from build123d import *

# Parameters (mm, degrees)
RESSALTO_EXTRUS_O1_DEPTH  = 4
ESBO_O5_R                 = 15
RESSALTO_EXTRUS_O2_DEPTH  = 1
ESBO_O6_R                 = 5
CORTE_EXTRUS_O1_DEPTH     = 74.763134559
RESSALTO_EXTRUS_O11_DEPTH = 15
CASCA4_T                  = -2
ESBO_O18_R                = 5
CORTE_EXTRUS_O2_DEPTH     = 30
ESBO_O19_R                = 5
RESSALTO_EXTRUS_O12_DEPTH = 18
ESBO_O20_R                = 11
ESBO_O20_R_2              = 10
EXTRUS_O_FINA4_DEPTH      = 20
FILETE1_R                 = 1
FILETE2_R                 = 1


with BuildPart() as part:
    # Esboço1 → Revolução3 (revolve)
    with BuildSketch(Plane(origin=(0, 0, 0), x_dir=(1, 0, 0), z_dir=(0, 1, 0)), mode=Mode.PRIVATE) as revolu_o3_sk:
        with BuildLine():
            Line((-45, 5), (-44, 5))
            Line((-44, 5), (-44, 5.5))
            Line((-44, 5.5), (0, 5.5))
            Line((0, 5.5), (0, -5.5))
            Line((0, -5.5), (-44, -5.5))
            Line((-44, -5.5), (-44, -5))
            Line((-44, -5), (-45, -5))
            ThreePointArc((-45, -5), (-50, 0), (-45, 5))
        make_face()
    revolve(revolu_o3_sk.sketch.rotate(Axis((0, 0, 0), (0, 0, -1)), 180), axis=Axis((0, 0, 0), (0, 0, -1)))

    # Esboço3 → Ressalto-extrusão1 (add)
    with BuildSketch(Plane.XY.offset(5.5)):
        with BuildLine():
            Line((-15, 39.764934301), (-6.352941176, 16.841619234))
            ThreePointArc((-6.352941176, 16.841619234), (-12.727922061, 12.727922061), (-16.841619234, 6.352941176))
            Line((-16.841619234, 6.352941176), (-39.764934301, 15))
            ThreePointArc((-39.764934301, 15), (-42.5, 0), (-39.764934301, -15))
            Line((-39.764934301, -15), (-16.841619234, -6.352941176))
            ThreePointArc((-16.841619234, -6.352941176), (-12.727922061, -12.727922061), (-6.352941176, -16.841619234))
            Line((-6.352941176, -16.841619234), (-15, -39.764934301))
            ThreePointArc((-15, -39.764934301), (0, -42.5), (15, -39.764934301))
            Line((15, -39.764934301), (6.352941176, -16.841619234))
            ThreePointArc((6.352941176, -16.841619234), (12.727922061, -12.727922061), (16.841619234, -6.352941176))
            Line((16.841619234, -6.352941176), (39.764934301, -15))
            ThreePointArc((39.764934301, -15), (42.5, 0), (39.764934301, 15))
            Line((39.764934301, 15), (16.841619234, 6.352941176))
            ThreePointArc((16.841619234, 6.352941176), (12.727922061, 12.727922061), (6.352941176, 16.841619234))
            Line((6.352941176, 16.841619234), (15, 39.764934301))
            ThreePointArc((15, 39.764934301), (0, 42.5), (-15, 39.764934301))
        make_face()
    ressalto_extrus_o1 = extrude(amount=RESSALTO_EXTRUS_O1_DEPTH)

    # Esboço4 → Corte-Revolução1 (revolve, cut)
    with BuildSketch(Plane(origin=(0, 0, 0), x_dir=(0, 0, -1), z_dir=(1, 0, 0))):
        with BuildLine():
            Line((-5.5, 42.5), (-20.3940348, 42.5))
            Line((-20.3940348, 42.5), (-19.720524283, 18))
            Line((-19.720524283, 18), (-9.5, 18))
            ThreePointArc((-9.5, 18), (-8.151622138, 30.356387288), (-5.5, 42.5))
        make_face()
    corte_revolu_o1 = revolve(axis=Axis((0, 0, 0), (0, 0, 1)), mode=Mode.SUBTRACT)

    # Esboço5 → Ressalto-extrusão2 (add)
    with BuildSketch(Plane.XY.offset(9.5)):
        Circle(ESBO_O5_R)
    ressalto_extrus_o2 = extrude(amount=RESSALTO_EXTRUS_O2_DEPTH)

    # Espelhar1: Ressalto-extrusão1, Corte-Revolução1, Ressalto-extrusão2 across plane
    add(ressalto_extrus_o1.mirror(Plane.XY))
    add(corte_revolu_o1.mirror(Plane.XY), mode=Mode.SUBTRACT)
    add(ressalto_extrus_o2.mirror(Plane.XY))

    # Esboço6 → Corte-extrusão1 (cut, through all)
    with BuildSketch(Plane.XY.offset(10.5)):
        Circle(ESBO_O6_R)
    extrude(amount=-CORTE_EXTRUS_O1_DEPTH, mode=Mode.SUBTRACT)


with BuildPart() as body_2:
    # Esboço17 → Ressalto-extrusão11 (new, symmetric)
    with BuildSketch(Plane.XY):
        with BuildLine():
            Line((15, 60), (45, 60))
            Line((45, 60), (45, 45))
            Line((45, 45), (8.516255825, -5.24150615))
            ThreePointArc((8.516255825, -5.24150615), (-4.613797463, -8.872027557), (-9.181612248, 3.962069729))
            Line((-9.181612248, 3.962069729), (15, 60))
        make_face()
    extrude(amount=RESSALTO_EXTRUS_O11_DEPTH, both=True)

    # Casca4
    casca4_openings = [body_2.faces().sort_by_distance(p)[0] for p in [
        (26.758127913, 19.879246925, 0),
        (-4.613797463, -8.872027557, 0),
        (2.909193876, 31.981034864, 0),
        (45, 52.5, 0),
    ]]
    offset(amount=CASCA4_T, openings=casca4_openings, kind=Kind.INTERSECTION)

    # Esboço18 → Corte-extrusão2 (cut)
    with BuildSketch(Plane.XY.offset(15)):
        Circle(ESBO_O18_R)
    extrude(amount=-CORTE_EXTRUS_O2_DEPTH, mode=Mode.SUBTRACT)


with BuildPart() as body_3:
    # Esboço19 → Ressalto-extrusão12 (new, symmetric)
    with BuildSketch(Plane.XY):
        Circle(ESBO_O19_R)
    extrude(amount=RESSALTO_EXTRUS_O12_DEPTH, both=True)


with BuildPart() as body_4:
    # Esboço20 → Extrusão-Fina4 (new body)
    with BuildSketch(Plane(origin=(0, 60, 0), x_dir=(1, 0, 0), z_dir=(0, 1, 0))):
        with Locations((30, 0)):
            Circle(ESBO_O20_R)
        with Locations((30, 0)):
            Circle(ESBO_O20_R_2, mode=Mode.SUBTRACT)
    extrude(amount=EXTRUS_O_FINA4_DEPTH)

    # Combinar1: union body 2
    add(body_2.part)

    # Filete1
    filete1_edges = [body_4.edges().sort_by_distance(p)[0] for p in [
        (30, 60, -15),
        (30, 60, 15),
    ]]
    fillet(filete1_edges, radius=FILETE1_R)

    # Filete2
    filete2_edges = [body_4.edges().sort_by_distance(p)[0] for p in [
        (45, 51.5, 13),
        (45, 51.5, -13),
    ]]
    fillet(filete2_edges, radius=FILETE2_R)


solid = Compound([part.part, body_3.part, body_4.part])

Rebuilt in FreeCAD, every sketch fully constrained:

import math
import FreeCAD as App
import Part
import Sketcher
Q = App.Units.Quantity


def edges_at(feature, points):
    """Names of the edges that pass closest to the given points."""
    edges = feature.Shape.Edges
    near = lambda p: min(range(len(edges)), key=lambda i: edges[i].distToShape(Part.Vertex(*p))[0])
    return sorted({f"Edge{near(p) + 1}" for p in points})


def faces_at(feature, points):
    """Names of the faces that lie closest to the given points."""
    faces = feature.Shape.Faces
    near = lambda p: min(range(len(faces)), key=lambda i: faces[i].distToShape(Part.Vertex(*p))[0])
    return sorted({f"Face{near(p) + 1}" for p in points})

doc = App.newDocument("Part")
body = doc.addObject("PartDesign::Body", "Body")

sketch1 = doc.addObject("Sketcher::SketchObject", "Sketch")
body.addObject(sketch1)
sketch1.AttachmentSupport = (doc.XZ_Plane, [""])
sketch1.MapMode = "FlatFace"
sketch1.addGeometry([
    Part.LineSegment(App.Vector(-44, -5, 0), App.Vector(-45, -5, 0)),
    Part.ArcOfCircle(Part.Circle(App.Vector(-45, 0, 0), App.Vector(0, 0, 1), 5), math.radians(90), math.radians(270)),
    Part.LineSegment(App.Vector(-45, 5, 0), App.Vector(-44, 5, 0)),
    Part.LineSegment(App.Vector(-44, 5, 0), App.Vector(-44, 5.5, 0)),
    Part.LineSegment(App.Vector(-44, 5.5, 0), App.Vector(0, 5.5, 0)),
    Part.LineSegment(App.Vector(0, 5.5, 0), App.Vector(0, -5.5, 0)),
    Part.LineSegment(App.Vector(0, -5.5, 0), App.Vector(-44, -5.5, 0)),
    Part.LineSegment(App.Vector(-44, -5.5, 0), App.Vector(-44, -5, 0)),
], False)
sketch1.addConstraint([
    Sketcher.Constraint("Tangent", 0, 2, 1, 2),
    Sketcher.Constraint("Tangent", 1, 1, 2, 1),
    Sketcher.Constraint("Coincident", 2, 2, 3, 1),
    Sketcher.Constraint("Coincident", 3, 2, 4, 1),
    Sketcher.Constraint("Coincident", 4, 2, 5, 1),
    Sketcher.Constraint("Coincident", 5, 2, 6, 1),
    Sketcher.Constraint("Coincident", 6, 2, 7, 1),
    Sketcher.Constraint("Coincident", 7, 2, 0, 1),
    Sketcher.Constraint("Horizontal", 0),
    Sketcher.Constraint("Horizontal", 2),
    Sketcher.Constraint("Vertical", 3),
    Sketcher.Constraint("Horizontal", 4),
    Sketcher.Constraint("Vertical", 5),
    Sketcher.Constraint("Horizontal", 6),
    Sketcher.Constraint("Vertical", 7),
    Sketcher.Constraint("Symmetric", 4, 2, 5, 2, -1, 1),
    Sketcher.Constraint("Symmetric", 2, 2, 7, 2, -1),
    Sketcher.Constraint("Radius", 1, Q("5 mm")),
    Sketcher.Constraint("DistanceX", 0, 2, 0, 1, Q("1 mm")),
    Sketcher.Constraint("DistanceX", 4, 1, 4, 2, Q("44 mm")),
    Sketcher.Constraint("DistanceY", 5, 2, 5, 1, Q("11 mm")),
])
revolution = doc.addObject("PartDesign::Revolution", "Revolution")
body.addObject(revolution)
revolution.Profile = sketch1
revolution.ReferenceAxis = (sketch1, ["V_Axis"])
revolution.Angle = 360

sketch2 = doc.addObject("Sketcher::SketchObject", "Sketch001")
body.addObject(sketch2)
sketch2.AttachmentSupport = (doc.XY_Plane, [""])
sketch2.MapMode = "FlatFace"
sketch2.AttachmentOffset = App.Placement(App.Vector(0, 0, 5.5), App.Rotation())
sketch2.addGeometry([
    Part.LineSegment(App.Vector(-15, 40, 0), App.Vector(-6, 17, 0)),
    Part.ArcOfCircle(Part.Circle(App.Vector(0, 0, 0), App.Vector(0, 0, 1), 18), math.radians(111), math.radians(159)),
    Part.LineSegment(App.Vector(-17, 6, 0), App.Vector(-40, 15, 0)),
    Part.ArcOfCircle(Part.Circle(App.Vector(0, 0, 0), App.Vector(0, 0, 1), 42), math.radians(159), math.radians(201)),
    Part.LineSegment(App.Vector(-40, -15, 0), App.Vector(-17, -6, 0)),
    Part.ArcOfCircle(Part.Circle(App.Vector(0, 0, 0), App.Vector(0, 0, 1), 18), math.radians(-159), math.radians(-111)),
    Part.LineSegment(App.Vector(-6, -17, 0), App.Vector(-15, -40, 0)),
    Part.ArcOfCircle(Part.Circle(App.Vector(0, 0, 0), App.Vector(0, 0, 1), 42), math.radians(-111), math.radians(-69)),
    Part.LineSegment(App.Vector(15, -40, 0), App.Vector(6, -17, 0)),
    Part.ArcOfCircle(Part.Circle(App.Vector(0, 0, 0), App.Vector(0, 0, 1), 18), math.radians(-69), math.radians(-21)),
    Part.LineSegment(App.Vector(17, -6, 0), App.Vector(40, -15, 0)),
    Part.ArcOfCircle(Part.Circle(App.Vector(0, 0, 0), App.Vector(0, 0, 1), 42), math.radians(-21), math.radians(21)),
    Part.LineSegment(App.Vector(40, 15, 0), App.Vector(17, 6, 0)),
    Part.ArcOfCircle(Part.Circle(App.Vector(0, 0, 0), App.Vector(0, 0, 1), 18), math.radians(21), math.radians(69)),
    Part.LineSegment(App.Vector(6, 17, 0), App.Vector(15, 40, 0)),
    Part.ArcOfCircle(Part.Circle(App.Vector(0, 0, 0), App.Vector(0, 0, 1), 42), math.radians(69), math.radians(111)),
], False)
sketch2.addConstraint([
    Sketcher.Constraint("Coincident", 0, 2, 1, 1),
    Sketcher.Constraint("Coincident", 1, 2, 2, 1),
    Sketcher.Constraint("Coincident", 2, 2, 3, 1),
    Sketcher.Constraint("Coincident", 3, 2, 4, 1),
    Sketcher.Constraint("Coincident", 4, 2, 5, 1),
    Sketcher.Constraint("Coincident", 5, 2, 6, 1),
    Sketcher.Constraint("Coincident", 6, 2, 7, 1),
    Sketcher.Constraint("Coincident", 7, 2, 8, 1),
    Sketcher.Constraint("Coincident", 8, 2, 9, 1),
    Sketcher.Constraint("Coincident", 9, 2, 10, 1),
    Sketcher.Constraint("Coincident", 10, 2, 11, 1),
    Sketcher.Constraint("Coincident", 11, 2, 12, 1),
    Sketcher.Constraint("Coincident", 12, 2, 13, 1),
    Sketcher.Constraint("Coincident", 13, 2, 14, 1),
    Sketcher.Constraint("Coincident", 14, 2, 15, 1),
    Sketcher.Constraint("Coincident", 15, 2, 0, 1),
    Sketcher.Constraint("Coincident", 1, 3, -1, 1),
    Sketcher.Constraint("Coincident", 3, 3, -1, 1),
    Sketcher.Constraint("Coincident", 5, 3, -1, 1),
    Sketcher.Constraint("Coincident", 7, 3, -1, 1),
    Sketcher.Constraint("Coincident", 9, 3, -1, 1),
    Sketcher.Constraint("Coincident", 11, 3, -1, 1),
    Sketcher.Constraint("Coincident", 13, 3, -1, 1),
    Sketcher.Constraint("Coincident", 15, 3, -1, 1),
    Sketcher.Constraint("Equal", 1, 5),
    Sketcher.Constraint("Equal", 3, 7),
    Sketcher.Constraint("Equal", 5, 9),
    Sketcher.Constraint("Equal", 7, 11),
    Sketcher.Constraint("Equal", 9, 13),
    Sketcher.Constraint("Equal", 11, 15),
    Sketcher.Constraint("Perpendicular", 0, 4),
    Sketcher.Constraint("Perpendicular", 2, 6),
    Sketcher.Constraint("Perpendicular", 4, 8),
    Sketcher.Constraint("Perpendicular", 6, 10),
    Sketcher.Constraint("Perpendicular", 8, 12),
    Sketcher.Constraint("Perpendicular", 10, 14),
    Sketcher.Constraint("Horizontal", 6, 2, 7, 2),
    Sketcher.Constraint("Horizontal", 5, 2, 8, 2),
    Sketcher.Constraint("Horizontal", 4, 2, 9, 2),
    Sketcher.Constraint("Horizontal", 2, 2, 11, 2),
    Sketcher.Constraint("Horizontal", 0, 2, 13, 2),
    Sketcher.Constraint("Vertical", 2, 2, 3, 2),
    Sketcher.Constraint("Vertical", 0, 2, 5, 2),
    Sketcher.Constraint("Radius", 1, Q("18 mm")),
    Sketcher.Constraint("Radius", 3, Q("42.5 mm")),
    Sketcher.Constraint("DistanceY", -1, 1, 2, 2, Q("15 mm")),
    Sketcher.Constraint("DistanceX", 6, 2, -1, 1, Q("15 mm")),
    Sketcher.Constraint("DistanceX", 0, 2, -1, 1, Q("6.352941 mm")),
])
pad1 = doc.addObject("PartDesign::Pad", "Pad")
body.addObject(pad1)
pad1.Profile = sketch2
pad1.Length = 4

sketch3 = doc.addObject("Sketcher::SketchObject", "Sketch002")
body.addObject(sketch3)
sketch3.AttachmentSupport = (doc.YZ_Plane, [""])
sketch3.MapMode = "FlatFace"
sketch3.addGeometry([
    Part.LineSegment(App.Vector(42, 6, 0), App.Vector(42, 20, 0)),
    Part.LineSegment(App.Vector(42, 20, 0), App.Vector(18, 20, 0)),
    Part.LineSegment(App.Vector(18, 20, 0), App.Vector(18, 10, 0)),
    Part.ArcOfCircle(Part.Circle(App.Vector(12, -107, 0), App.Vector(0, 0, 1), 117), math.radians(74.64), math.radians(86.82)),
], False)
sketch3.addConstraint([
    Sketcher.Constraint("Coincident", 0, 2, 1, 1),
    Sketcher.Constraint("Coincident", 1, 2, 2, 1),
    Sketcher.Constraint("Coincident", 2, 2, 3, 2),
    Sketcher.Constraint("Coincident", 3, 1, 0, 1),
    Sketcher.Constraint("Vertical", 0),
    Sketcher.Constraint("Vertical", 2),
    Sketcher.Constraint("Radius", 3, Q("117 mm")),
    Sketcher.Constraint("DistanceX", -1, 1, 1, 2, Q("18 mm")),
    Sketcher.Constraint("DistanceY", 3, 1, 2, 2, Q("4 mm")),
    Sketcher.Constraint("DistanceX", -1, 1, 0, 2, Q("42.5 mm")),
    Sketcher.Constraint("DistanceY", -1, 1, 2, 2, Q("9.5 mm")),
    Sketcher.Constraint("DistanceY", 0, 1, 0, 2, Q("14.894035 mm")),
    Sketcher.Constraint("DistanceY", 2, 2, 2, 1, Q("10.220524 mm")),
])
groove = doc.addObject("PartDesign::Groove", "Groove")
body.addObject(groove)
groove.Profile = sketch3
groove.ReferenceAxis = (sketch3, ["V_Axis"])
groove.Angle = 360

sketch4 = doc.addObject("Sketcher::SketchObject", "Sketch003")
body.addObject(sketch4)
sketch4.AttachmentSupport = (doc.XY_Plane, [""])
sketch4.MapMode = "FlatFace"
sketch4.AttachmentOffset = App.Placement(App.Vector(0, 0, 9.5), App.Rotation())
sketch4.addGeometry(Part.Circle(App.Vector(0, 0, 0), App.Vector(0, 0, 1), 15), False)
sketch4.addConstraint([
    Sketcher.Constraint("Coincident", 0, 3, -1, 1),
    Sketcher.Constraint("Diameter", 0, Q("30 mm")),
])
pad2 = doc.addObject("PartDesign::Pad", "Pad001")
body.addObject(pad2)
pad2.Profile = sketch4
pad2.Length = 1
doc.recompute()

mirrored = doc.addObject("PartDesign::Mirrored", "Mirrored")
body.addObject(mirrored)
mirrored.Originals = [pad1, groove, pad2]
mirrored.MirrorPlane = (doc.XY_Plane, [""])
body.Tip = mirrored

sketch5 = doc.addObject("Sketcher::SketchObject", "Sketch004")
body.addObject(sketch5)
sketch5.AttachmentSupport = (doc.XY_Plane, [""])
sketch5.MapMode = "FlatFace"
sketch5.AttachmentOffset = App.Placement(App.Vector(0, 0, 10.5), App.Rotation())
sketch5.addGeometry(Part.Circle(App.Vector(0, 0, 0), App.Vector(0, 0, 1), 5), False)
sketch5.addConstraint([
    Sketcher.Constraint("Coincident", 0, 3, -1, 1),
    Sketcher.Constraint("Diameter", 0, Q("10 mm")),
])
pocket1 = doc.addObject("PartDesign::Pocket", "Pocket")
body.addObject(pocket1)
pocket1.Profile = sketch5
pocket1.Type = "ThroughAll"
body2 = doc.addObject("PartDesign::Body", "Body001")

sketch6 = doc.addObject("Sketcher::SketchObject", "Sketch005")
body2.addObject(sketch6)
sketch6.AttachmentSupport = (doc.getObject("XY_Plane001"), [""])
sketch6.MapMode = "FlatFace"
sketch6.addGeometry([
    Part.LineSegment(App.Vector(45, 60, 0), App.Vector(15, 60, 0)),
    Part.LineSegment(App.Vector(15, 60, 0), App.Vector(-9, 4, 0)),
    Part.ArcOfCircle(Part.Circle(App.Vector(0, 0, 0), App.Vector(0, 0, 1), 10), math.radians(157), math.radians(328)),
    Part.LineSegment(App.Vector(9, -5, 0), App.Vector(45, 45, 0)),
    Part.LineSegment(App.Vector(45, 45, 0), App.Vector(45, 60, 0)),
], False)
sketch6.addConstraint([
    Sketcher.Constraint("Coincident", 0, 2, 1, 1),
    Sketcher.Constraint("Tangent", 1, 2, 2, 1),
    Sketcher.Constraint("Coincident", 2, 2, 3, 1),
    Sketcher.Constraint("Coincident", 3, 2, 4, 1),
    Sketcher.Constraint("Coincident", 4, 2, 0, 1),
    Sketcher.Constraint("Horizontal", 0),
    Sketcher.Constraint("Vertical", 4),
    Sketcher.Constraint("Coincident", 2, 3, -1, 1),
    Sketcher.Constraint("Radius", 2, Q("10 mm")),
    Sketcher.Constraint("DistanceX", 0, 2, 0, 1, Q("30 mm")),
    Sketcher.Constraint("DistanceY", 4, 1, 4, 2, Q("15 mm")),
    Sketcher.Constraint("DistanceX", -1, 1, 0, 2, Q("15 mm")),
    Sketcher.Constraint("DistanceY", -1, 1, 0, 2, Q("60 mm")),
    Sketcher.Constraint("Distance", 3, Q("62.090841 mm")),
])
pad3 = doc.addObject("PartDesign::Pad", "Pad002")
body2.addObject(pad3)
pad3.Profile = sketch6
pad3.Length = 30
pad3.Midplane = True
doc.recompute()

thickness = doc.addObject("PartDesign::Thickness", "Thickness")
body2.addObject(thickness)
thickness.Base = (pad3, faces_at(pad3, [
    (26.758, 19.879, 0),
    (-4.614, -8.872, 0),
    (2.909, 31.981, 0),
    (45, 52.5, 0),
]))
thickness.Value = 2
thickness.Reversed = True
thickness.Join = "Intersection"

sketch7 = doc.addObject("Sketcher::SketchObject", "Sketch006")
body2.addObject(sketch7)
sketch7.AttachmentSupport = (doc.getObject("XY_Plane001"), [""])
sketch7.MapMode = "FlatFace"
sketch7.AttachmentOffset = App.Placement(App.Vector(0, 0, 15), App.Rotation())
sketch7.addGeometry(Part.Circle(App.Vector(0, 0, 0), App.Vector(0, 0, 1), 5), False)
sketch7.addConstraint([
    Sketcher.Constraint("Coincident", 0, 3, -1, 1),
    Sketcher.Constraint("Diameter", 0, Q("10 mm")),
])
pocket2 = doc.addObject("PartDesign::Pocket", "Pocket001")
body2.addObject(pocket2)
pocket2.Profile = sketch7
pocket2.Length = 30
body3 = doc.addObject("PartDesign::Body", "Body002")

sketch8 = doc.addObject("Sketcher::SketchObject", "Sketch007")
body3.addObject(sketch8)
sketch8.AttachmentSupport = (doc.getObject("XY_Plane002"), [""])
sketch8.MapMode = "FlatFace"
sketch8.addGeometry(Part.Circle(App.Vector(0, 0, 0), App.Vector(0, 0, 1), 5), False)
sketch8.addConstraint([
    Sketcher.Constraint("Coincident", 0, 3, -1, 1),
    Sketcher.Constraint("Diameter", 0, Q("10 mm")),
])
pad4 = doc.addObject("PartDesign::Pad", "Pad003")
body3.addObject(pad4)
pad4.Profile = sketch8
pad4.Length = 36
pad4.Midplane = True
body4 = doc.addObject("PartDesign::Body", "Body003")

sketch9 = doc.addObject("Sketcher::SketchObject", "Sketch008")
body4.addObject(sketch9)
sketch9.AttachmentSupport = (doc.getObject("XZ_Plane003"), [""])
sketch9.MapMode = "FlatFace"
sketch9.AttachmentOffset = App.Placement(App.Vector(0, 0, -60), App.Rotation())
sketch9.addGeometry([
    Part.Circle(App.Vector(30, 0, 0), App.Vector(0, 0, 1), 11),
    Part.Circle(App.Vector(30, 0, 0), App.Vector(0, 0, 1), 10),
], False)
sketch9.addConstraint([
    Sketcher.Constraint("Coincident", 1, 3, 0, 3),
    Sketcher.Constraint("PointOnObject", 0, 3, -1),
    Sketcher.Constraint("Diameter", 0, Q("22 mm")),
    Sketcher.Constraint("Diameter", 1, Q("20 mm")),
    Sketcher.Constraint("DistanceX", -1, 1, 0, 3, Q("30 mm")),
])
pad5 = doc.addObject("PartDesign::Pad", "Pad004")
body4.addObject(pad5)
pad5.Profile = sketch9
pad5.Length = 20
pad5.Reversed = True
doc.recompute()

boolean = doc.addObject("PartDesign::Boolean", "Boolean")
body4.addObject(boolean)
boolean.Type = "Fuse"
boolean.addObjects([body2])
doc.recompute()

fillet = doc.addObject("PartDesign::Fillet", "Fillet")
body4.addObject(fillet)
fillet.Base = (boolean, edges_at(boolean, [(30, 60, -15), (30, 60, 15)]))
fillet.Radius = 1
doc.recompute()

fillet2 = doc.addObject("PartDesign::Fillet", "Fillet001")
body4.addObject(fillet2)
fillet2.Base = (fillet, edges_at(fillet, [(45, 51.5, 13), (45, 51.5, -13)]))
fillet2.Radius = 1

doc.recompute()
